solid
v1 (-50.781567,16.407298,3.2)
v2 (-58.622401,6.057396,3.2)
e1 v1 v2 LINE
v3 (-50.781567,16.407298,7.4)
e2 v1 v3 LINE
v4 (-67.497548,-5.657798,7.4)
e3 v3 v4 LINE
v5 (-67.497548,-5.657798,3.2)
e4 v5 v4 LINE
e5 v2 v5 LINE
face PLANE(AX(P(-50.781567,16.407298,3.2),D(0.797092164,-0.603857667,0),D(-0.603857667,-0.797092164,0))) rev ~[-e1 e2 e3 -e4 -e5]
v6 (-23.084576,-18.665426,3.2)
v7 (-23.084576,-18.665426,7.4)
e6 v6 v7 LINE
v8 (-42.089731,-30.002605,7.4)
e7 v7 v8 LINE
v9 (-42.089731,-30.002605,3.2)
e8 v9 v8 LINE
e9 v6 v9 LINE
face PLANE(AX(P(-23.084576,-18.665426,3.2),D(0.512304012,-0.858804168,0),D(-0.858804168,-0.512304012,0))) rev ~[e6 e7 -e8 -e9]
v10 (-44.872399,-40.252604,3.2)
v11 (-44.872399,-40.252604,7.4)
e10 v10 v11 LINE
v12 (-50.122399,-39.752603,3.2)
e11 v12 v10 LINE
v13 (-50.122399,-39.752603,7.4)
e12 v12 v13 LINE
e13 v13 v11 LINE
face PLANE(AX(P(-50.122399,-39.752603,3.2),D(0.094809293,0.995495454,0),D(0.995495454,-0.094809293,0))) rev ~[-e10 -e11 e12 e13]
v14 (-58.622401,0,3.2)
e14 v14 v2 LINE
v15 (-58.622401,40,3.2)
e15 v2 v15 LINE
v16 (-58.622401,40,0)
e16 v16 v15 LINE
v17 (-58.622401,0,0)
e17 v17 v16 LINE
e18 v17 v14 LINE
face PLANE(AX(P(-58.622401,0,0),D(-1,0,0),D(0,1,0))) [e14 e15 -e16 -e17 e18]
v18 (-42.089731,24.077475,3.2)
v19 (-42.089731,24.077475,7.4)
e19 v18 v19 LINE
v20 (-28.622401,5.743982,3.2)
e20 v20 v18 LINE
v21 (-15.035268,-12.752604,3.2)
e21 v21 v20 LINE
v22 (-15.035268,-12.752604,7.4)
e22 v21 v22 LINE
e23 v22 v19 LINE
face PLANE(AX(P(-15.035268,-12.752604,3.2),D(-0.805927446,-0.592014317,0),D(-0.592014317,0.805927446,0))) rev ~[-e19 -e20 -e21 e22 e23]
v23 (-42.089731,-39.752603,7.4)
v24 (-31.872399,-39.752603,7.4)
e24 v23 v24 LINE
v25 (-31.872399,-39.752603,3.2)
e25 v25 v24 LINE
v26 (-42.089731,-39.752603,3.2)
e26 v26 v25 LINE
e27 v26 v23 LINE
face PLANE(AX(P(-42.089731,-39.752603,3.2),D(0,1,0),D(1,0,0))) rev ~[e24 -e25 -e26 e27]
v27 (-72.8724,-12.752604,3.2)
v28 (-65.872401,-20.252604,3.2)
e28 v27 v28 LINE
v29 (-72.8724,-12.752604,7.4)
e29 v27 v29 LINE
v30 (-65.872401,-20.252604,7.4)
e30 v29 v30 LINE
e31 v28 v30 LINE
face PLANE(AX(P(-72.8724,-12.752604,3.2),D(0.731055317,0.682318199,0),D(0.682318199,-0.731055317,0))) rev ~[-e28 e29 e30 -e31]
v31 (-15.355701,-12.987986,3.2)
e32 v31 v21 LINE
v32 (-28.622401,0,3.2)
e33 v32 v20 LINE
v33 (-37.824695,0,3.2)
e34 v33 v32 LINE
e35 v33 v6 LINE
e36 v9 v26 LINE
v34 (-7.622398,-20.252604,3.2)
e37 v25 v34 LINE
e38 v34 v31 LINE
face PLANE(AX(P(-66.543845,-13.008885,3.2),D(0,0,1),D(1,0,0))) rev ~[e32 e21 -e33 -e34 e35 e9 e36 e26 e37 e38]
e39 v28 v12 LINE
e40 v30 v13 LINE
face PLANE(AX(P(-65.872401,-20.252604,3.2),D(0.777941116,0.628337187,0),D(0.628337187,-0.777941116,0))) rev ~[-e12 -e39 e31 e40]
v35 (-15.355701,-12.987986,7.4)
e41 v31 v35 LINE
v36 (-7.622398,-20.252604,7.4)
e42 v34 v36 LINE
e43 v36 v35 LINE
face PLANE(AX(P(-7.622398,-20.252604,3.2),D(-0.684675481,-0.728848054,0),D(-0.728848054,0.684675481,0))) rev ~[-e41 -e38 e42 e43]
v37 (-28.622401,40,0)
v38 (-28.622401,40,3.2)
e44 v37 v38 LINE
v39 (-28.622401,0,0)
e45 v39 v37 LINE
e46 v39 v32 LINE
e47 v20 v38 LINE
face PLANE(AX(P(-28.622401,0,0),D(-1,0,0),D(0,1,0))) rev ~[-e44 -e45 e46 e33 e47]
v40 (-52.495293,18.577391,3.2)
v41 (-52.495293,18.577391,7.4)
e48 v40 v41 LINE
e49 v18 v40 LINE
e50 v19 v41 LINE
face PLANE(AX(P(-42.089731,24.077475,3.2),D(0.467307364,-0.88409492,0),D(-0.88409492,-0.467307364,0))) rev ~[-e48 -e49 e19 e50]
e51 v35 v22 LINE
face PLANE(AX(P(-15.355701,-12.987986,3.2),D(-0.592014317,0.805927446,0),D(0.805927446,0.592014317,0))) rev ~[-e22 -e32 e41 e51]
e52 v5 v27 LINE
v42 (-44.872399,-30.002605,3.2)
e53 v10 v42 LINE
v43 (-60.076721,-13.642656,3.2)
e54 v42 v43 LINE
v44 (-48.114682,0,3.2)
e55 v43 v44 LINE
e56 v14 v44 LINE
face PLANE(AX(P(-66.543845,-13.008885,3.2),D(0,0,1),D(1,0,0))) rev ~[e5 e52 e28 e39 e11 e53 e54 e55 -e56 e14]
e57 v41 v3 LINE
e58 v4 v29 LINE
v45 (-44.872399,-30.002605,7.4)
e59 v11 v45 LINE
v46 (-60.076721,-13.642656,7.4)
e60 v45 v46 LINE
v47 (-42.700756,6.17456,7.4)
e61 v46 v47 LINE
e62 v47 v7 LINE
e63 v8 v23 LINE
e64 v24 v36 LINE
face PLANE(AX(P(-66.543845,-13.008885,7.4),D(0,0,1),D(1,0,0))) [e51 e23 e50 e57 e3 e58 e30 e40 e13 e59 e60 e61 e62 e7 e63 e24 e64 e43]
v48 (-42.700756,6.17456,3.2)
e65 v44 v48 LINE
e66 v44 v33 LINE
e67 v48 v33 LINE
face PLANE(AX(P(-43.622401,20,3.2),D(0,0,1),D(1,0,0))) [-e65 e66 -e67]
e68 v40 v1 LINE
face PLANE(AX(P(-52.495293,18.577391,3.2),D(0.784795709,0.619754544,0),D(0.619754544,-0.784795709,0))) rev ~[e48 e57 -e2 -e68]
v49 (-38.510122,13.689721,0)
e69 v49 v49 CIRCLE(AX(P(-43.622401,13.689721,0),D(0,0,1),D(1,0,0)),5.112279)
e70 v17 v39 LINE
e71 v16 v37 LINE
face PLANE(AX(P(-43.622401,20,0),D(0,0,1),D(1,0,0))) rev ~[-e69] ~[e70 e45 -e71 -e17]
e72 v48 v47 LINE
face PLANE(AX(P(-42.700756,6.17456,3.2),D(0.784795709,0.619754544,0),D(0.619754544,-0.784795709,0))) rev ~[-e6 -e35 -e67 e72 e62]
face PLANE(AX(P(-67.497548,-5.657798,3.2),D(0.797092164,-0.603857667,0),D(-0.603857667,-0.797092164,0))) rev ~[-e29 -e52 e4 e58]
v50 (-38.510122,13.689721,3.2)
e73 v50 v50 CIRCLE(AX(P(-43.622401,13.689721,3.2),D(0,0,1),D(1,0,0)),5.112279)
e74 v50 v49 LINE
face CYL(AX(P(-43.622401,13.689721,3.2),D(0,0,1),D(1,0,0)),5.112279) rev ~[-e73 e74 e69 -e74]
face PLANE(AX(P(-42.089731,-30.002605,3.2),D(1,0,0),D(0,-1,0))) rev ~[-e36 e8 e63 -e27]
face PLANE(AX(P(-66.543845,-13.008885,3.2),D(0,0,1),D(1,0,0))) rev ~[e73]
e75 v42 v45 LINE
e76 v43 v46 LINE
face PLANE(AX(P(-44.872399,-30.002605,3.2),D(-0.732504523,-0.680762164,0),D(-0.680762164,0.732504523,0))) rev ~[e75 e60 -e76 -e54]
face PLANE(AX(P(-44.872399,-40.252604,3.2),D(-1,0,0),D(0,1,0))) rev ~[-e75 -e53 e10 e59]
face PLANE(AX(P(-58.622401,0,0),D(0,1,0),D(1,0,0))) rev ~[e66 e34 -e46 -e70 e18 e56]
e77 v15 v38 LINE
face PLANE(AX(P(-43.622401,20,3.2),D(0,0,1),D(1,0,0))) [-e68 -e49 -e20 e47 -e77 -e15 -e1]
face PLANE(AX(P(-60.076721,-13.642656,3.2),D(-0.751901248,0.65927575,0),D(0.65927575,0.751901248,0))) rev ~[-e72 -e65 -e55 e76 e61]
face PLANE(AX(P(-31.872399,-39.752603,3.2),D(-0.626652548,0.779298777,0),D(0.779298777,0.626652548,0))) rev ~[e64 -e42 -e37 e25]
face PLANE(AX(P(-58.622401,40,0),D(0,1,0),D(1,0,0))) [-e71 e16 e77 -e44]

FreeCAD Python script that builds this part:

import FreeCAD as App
import Part
import Sketcher

V = App.Vector

doc = App.newDocument("Part")
params = doc.addObject("Spreadsheet::Sheet", "Params")
for row, (alias, value) in enumerate([
    ("sketch1_width", "30 mm"),
    ("sketch1_height", "40 mm"),
    ("pad1_length", "3.2 mm"),
    ("pocket1_length", "25 mm"),
    ("sketch3_height", "10.249998 mm"),
    ("pad2_length", "4.2 mm"),
], start=1):
    params.set(f"A{row}", alias)
    params.set(f"B{row}", "=" + value)
    params.setAlias(f"B{row}", alias)

body = doc.addObject("PartDesign::Body", "Body")

sketch1 = doc.addObject("Sketcher::SketchObject", "Sketch")
body.addObject(sketch1)
sketch1.AttachmentSupport = (doc.XY_Plane, [""])
sketch1.MapMode = "FlatFace"
sketch1.addGeometry(Part.LineSegment(V(-59, 40, 0), V(-59, 0, 0)), False)
sketch1.addGeometry(Part.LineSegment(V(-59, 0, 0), V(-29, 0, 0)), False)
sketch1.addGeometry(Part.LineSegment(V(-29, 0, 0), V(-29, 40, 0)), False)
sketch1.addGeometry(Part.LineSegment(V(-29, 40, 0), V(-59, 40, 0)), False)
sketch1.addConstraint(Sketcher.Constraint("Coincident", 0, 2, 1, 1))
sketch1.addConstraint(Sketcher.Constraint("Coincident", 1, 2, 2, 1))
sketch1.addConstraint(Sketcher.Constraint("Coincident", 2, 2, 3, 1))
sketch1.addConstraint(Sketcher.Constraint("Coincident", 3, 2, 0, 1))
sketch1.addConstraint(Sketcher.Constraint("Vertical", 0))
sketch1.addConstraint(Sketcher.Constraint("Horizontal", 1))
sketch1.addConstraint(Sketcher.Constraint("Vertical", 2))
sketch1.addConstraint(Sketcher.Constraint("Horizontal", 3))
sketch1.addConstraint(Sketcher.Constraint("PointOnObject", 0, 2, -1))
sketch1.addConstraint(Sketcher.Constraint("DistanceX", 1, 1, 1, 2, 30.0))
sketch1.addConstraint(Sketcher.Constraint("DistanceY", 0, 2, 0, 1, 40.0))
sketch1.addConstraint(Sketcher.Constraint("DistanceX", 0, 2, -1, 1, 58.622401))
sketch1.setExpression("Constraints[9]", "Params.sketch1_width")
sketch1.setExpression("Constraints[10]", "Params.sketch1_height")
pad1 = doc.addObject("PartDesign::Pad", "Pad")
body.addObject(pad1)
pad1.Profile = sketch1
pad1.setExpression("Length", "Params.pad1_length")

sketch2 = doc.addObject("Sketcher::SketchObject", "Sketch001")
body.addObject(sketch2)
sketch2.AttachmentSupport = (doc.XY_Plane, [""])
sketch2.MapMode = "FlatFace"
sketch2.AttachmentOffset = App.Placement(V(0, 0, 3.2), App.Rotation())
sketch2.addGeometry(Part.Circle(V(-44, 14, 0), V(0, 0, 1), 5), False)
sketch2.addConstraint(Sketcher.Constraint("Diameter", 0, 10.224559))
sketch2.addConstraint(Sketcher.Constraint("DistanceX", 0, 3, -1, 1, 43.622401))
sketch2.addConstraint(Sketcher.Constraint("DistanceY", -1, 1, 0, 3, 13.689721))
pocket1 = doc.addObject("PartDesign::Pocket", "Pocket")
body.addObject(pocket1)
pocket1.Profile = sketch2
pocket1.setExpression("Length", "Params.pocket1_length")

sketch3 = doc.addObject("Sketcher::SketchObject", "Sketch002")
body.addObject(sketch3)
sketch3.AttachmentSupport = (doc.XY_Plane, [""])
sketch3.MapMode = "FlatFace"
sketch3.AttachmentOffset = App.Placement(V(0, 0, 3.2), App.Rotation())
sketch3.addGeometry(Part.LineSegment(V(-67.5, -5.66, 0), V(-72.87, -12.75, 0)), False)
sketch3.addGeometry(Part.LineSegment(V(-72.87, -12.75, 0), V(-65.87, -20.25, 0)), False)
sketch3.addGeometry(Part.LineSegment(V(-65.87, -20.25, 0), V(-50.12, -39.75, 0)), False)
sketch3.addGeometry(Part.LineSegment(V(-50.12, -39.75, 0), V(-44.87, -40.25, 0)), False)
sketch3.addGeometry(Part.LineSegment(V(-44.87, -40.25, 0), V(-44.87, -30, 0)), False)
sketch3.addGeometry(Part.LineSegment(V(-44.87, -30, 0), V(-60.08, -13.64, 0)), False)
sketch3.addGeometry(Part.LineSegment(V(-60.08, -13.64, 0), V(-42.7, 6.17, 0)), False)
sketch3.addGeometry(Part.LineSegment(V(-42.7, 6.17, 0), V(-23.08, -18.67, 0)), False)
sketch3.addGeometry(Part.LineSegment(V(-23.08, -18.67, 0), V(-42.09, -30, 0)), False)
sketch3.addGeometry(Part.LineSegment(V(-42.09, -30, 0), V(-42.09, -39.75, 0)), False)
sketch3.addGeometry(Part.LineSegment(V(-42.09, -39.75, 0), V(-31.87, -39.75, 0)), False)
sketch3.addGeometry(Part.LineSegment(V(-31.87, -39.75, 0), V(-7.62, -20.25, 0)), False)
sketch3.addGeometry(Part.LineSegment(V(-7.62, -20.25, 0), V(-15.36, -12.99, 0)), False)
sketch3.addGeometry(Part.LineSegment(V(-15.36, -12.99, 0), V(-15.04, -12.75, 0)), False)
sketch3.addGeometry(Part.LineSegment(V(-15.04, -12.75, 0), V(-42.09, 24.08, 0)), False)
sketch3.addGeometry(Part.LineSegment(V(-42.09, 24.08, 0), V(-52.5, 18.58, 0)), False)
sketch3.addGeometry(Part.LineSegment(V(-52.5, 18.58, 0), V(-50.78, 16.41, 0)), False)
sketch3.addGeometry(Part.LineSegment(V(-50.78, 16.41, 0), V(-67.5, -5.66, 0)), False)
sketch3.addConstraint(Sketcher.Constraint("Coincident", 0, 2, 1, 1))
sketch3.addConstraint(Sketcher.Constraint("Coincident", 1, 2, 2, 1))
sketch3.addConstraint(Sketcher.Constraint("Coincident", 2, 2, 3, 1))
sketch3.addConstraint(Sketcher.Constraint("Coincident", 3, 2, 4, 1))
sketch3.addConstraint(Sketcher.Constraint("Coincident", 4, 2, 5, 1))
sketch3.addConstraint(Sketcher.Constraint("Coincident", 5, 2, 6, 1))
sketch3.addConstraint(Sketcher.Constraint("Coincident", 6, 2, 7, 1))
sketch3.addConstraint(Sketcher.Constraint("Coincident", 7, 2, 8, 1))
sketch3.addConstraint(Sketcher.Constraint("Coincident", 8, 2, 9, 1))
sketch3.addConstraint(Sketcher.Constraint("Coincident", 9, 2, 10, 1))
sketch3.addConstraint(Sketcher.Constraint("Coincident", 10, 2, 11, 1))
sketch3.addConstraint(Sketcher.Constraint("Coincident", 11, 2, 12, 1))
sketch3.addConstraint(Sketcher.Constraint("Coincident", 12, 2, 13, 1))
sketch3.addConstraint(Sketcher.Constraint("Coincident", 13, 2, 14, 1))
sketch3.addConstraint(Sketcher.Constraint("Coincident", 14, 2, 15, 1))
sketch3.addConstraint(Sketcher.Constraint("Coincident", 15, 2, 16, 1))
sketch3.addConstraint(Sketcher.Constraint("Coincident", 16, 2, 17, 1))
sketch3.addConstraint(Sketcher.Constraint("Coincident", 17, 2, 0, 1))
sketch3.addConstraint(Sketcher.Constraint("Vertical", 4))
sketch3.addConstraint(Sketcher.Constraint("Vertical", 9))
sketch3.addConstraint(Sketcher.Constraint("Horizontal", 10))
sketch3.addConstraint(Sketcher.Constraint("Perpendicular", 13, 14))
sketch3.addConstraint(Sketcher.Constraint("Parallel", 7, 16))
sketch3.addConstraint(Sketcher.Constraint("Parallel", 0, 17))
sketch3.addConstraint(Sketcher.Constraint("Horizontal", 4, 2, 8, 2))
sketch3.addConstraint(Sketcher.Constraint("Horizontal", 2, 2, 9, 2))
sketch3.addConstraint(Sketcher.Constraint("Horizontal", 1, 2, 11, 2))
sketch3.addConstraint(Sketcher.Constraint("Horizontal", 0, 2, 13, 2))
sketch3.addConstraint(Sketcher.Constraint("Vertical", 9, 2, 14, 2))
sketch3.addConstraint(Sketcher.Constraint("DistanceX", 0, 2, 1, 2, 6.999999))
sketch3.addConstraint(Sketcher.Constraint("DistanceY", 2, 2, 0, 2, 26.999999))
sketch3.addConstraint(Sketcher.Constraint("DistanceX", 1, 2, 3, 2, 21.000002))
sketch3.addConstraint(Sketcher.Constraint("DistanceY", 3, 2, 1, 2, 20.0))
sketch3.addConstraint(Sketcher.Constraint("DistanceX", 3, 2, 10, 2, 13.0))
sketch3.addConstraint(Sketcher.Constraint("DistanceY", 4, 1, 4, 2, 10.249998))
sketch3.addConstraint(Sketcher.Constraint("DistanceY", 1, 2, 0, 2, 7.5))
sketch3.addConstraint(Sketcher.Constraint("DistanceX", 0, 2, 2, 2, 22.750001))
sketch3.addConstraint(Sketcher.Constraint("DistanceX", 10, 2, 11, 2, 24.250001))
sketch3.addConstraint(Sketcher.Constraint("Distance", 14, 45.699001))
sketch3.addConstraint(Sketcher.Constraint("DistanceX", 10, 1, 10, 2, 10.217331))
sketch3.addConstraint(Sketcher.Constraint("DistanceX", 0, 2, -1, 1, 72.8724))
sketch3.addConstraint(Sketcher.Constraint("DistanceX", 12, 2, -1, 1, 15.355701))
sketch3.addConstraint(Sketcher.Constraint("DistanceY", 17, 2, -1, 1, 5.657798))
sketch3.addConstraint(Sketcher.Constraint("DistanceY", 7, 2, 14, 2, 42.742901))
sketch3.addConstraint(Sketcher.Constraint("DistanceY", 0, 2, 16, 2, 29.159902))
sketch3.addConstraint(Sketcher.Constraint("Distance", 0, 8.90086))
sketch3.addConstraint(Sketcher.Constraint("Distance", 7, 31.651531))
sketch3.addConstraint(Sketcher.Constraint("Distance", 8, 22.129789))
sketch3.addConstraint(Sketcher.Constraint("Distance", 12, 10.610309))
sketch3.addConstraint(Sketcher.Constraint("Distance", 16, 2.76517))
sketch3.addConstraint(Sketcher.Constraint("Distance", 17, 27.681988))
sketch3.addConstraint(Sketcher.Constraint("DistanceX", 5, 2, -1, 1, 60.076721))
sketch3.addConstraint(Sketcher.Constraint("DistanceY", -1, 1, 6, 2, 6.17456))
sketch3.addConstraint(Sketcher.Constraint("DistanceY", 1, 2, 5, 2, 6.609948))
sketch3.setExpression("Constraints[34]", "Params.sketch3_height")
pad2 = doc.addObject("PartDesign::Pad", "Pad001")
body.addObject(pad2)
pad2.Profile = sketch3
pad2.setExpression("Length", "Params.pad2_length")

doc.recompute()
